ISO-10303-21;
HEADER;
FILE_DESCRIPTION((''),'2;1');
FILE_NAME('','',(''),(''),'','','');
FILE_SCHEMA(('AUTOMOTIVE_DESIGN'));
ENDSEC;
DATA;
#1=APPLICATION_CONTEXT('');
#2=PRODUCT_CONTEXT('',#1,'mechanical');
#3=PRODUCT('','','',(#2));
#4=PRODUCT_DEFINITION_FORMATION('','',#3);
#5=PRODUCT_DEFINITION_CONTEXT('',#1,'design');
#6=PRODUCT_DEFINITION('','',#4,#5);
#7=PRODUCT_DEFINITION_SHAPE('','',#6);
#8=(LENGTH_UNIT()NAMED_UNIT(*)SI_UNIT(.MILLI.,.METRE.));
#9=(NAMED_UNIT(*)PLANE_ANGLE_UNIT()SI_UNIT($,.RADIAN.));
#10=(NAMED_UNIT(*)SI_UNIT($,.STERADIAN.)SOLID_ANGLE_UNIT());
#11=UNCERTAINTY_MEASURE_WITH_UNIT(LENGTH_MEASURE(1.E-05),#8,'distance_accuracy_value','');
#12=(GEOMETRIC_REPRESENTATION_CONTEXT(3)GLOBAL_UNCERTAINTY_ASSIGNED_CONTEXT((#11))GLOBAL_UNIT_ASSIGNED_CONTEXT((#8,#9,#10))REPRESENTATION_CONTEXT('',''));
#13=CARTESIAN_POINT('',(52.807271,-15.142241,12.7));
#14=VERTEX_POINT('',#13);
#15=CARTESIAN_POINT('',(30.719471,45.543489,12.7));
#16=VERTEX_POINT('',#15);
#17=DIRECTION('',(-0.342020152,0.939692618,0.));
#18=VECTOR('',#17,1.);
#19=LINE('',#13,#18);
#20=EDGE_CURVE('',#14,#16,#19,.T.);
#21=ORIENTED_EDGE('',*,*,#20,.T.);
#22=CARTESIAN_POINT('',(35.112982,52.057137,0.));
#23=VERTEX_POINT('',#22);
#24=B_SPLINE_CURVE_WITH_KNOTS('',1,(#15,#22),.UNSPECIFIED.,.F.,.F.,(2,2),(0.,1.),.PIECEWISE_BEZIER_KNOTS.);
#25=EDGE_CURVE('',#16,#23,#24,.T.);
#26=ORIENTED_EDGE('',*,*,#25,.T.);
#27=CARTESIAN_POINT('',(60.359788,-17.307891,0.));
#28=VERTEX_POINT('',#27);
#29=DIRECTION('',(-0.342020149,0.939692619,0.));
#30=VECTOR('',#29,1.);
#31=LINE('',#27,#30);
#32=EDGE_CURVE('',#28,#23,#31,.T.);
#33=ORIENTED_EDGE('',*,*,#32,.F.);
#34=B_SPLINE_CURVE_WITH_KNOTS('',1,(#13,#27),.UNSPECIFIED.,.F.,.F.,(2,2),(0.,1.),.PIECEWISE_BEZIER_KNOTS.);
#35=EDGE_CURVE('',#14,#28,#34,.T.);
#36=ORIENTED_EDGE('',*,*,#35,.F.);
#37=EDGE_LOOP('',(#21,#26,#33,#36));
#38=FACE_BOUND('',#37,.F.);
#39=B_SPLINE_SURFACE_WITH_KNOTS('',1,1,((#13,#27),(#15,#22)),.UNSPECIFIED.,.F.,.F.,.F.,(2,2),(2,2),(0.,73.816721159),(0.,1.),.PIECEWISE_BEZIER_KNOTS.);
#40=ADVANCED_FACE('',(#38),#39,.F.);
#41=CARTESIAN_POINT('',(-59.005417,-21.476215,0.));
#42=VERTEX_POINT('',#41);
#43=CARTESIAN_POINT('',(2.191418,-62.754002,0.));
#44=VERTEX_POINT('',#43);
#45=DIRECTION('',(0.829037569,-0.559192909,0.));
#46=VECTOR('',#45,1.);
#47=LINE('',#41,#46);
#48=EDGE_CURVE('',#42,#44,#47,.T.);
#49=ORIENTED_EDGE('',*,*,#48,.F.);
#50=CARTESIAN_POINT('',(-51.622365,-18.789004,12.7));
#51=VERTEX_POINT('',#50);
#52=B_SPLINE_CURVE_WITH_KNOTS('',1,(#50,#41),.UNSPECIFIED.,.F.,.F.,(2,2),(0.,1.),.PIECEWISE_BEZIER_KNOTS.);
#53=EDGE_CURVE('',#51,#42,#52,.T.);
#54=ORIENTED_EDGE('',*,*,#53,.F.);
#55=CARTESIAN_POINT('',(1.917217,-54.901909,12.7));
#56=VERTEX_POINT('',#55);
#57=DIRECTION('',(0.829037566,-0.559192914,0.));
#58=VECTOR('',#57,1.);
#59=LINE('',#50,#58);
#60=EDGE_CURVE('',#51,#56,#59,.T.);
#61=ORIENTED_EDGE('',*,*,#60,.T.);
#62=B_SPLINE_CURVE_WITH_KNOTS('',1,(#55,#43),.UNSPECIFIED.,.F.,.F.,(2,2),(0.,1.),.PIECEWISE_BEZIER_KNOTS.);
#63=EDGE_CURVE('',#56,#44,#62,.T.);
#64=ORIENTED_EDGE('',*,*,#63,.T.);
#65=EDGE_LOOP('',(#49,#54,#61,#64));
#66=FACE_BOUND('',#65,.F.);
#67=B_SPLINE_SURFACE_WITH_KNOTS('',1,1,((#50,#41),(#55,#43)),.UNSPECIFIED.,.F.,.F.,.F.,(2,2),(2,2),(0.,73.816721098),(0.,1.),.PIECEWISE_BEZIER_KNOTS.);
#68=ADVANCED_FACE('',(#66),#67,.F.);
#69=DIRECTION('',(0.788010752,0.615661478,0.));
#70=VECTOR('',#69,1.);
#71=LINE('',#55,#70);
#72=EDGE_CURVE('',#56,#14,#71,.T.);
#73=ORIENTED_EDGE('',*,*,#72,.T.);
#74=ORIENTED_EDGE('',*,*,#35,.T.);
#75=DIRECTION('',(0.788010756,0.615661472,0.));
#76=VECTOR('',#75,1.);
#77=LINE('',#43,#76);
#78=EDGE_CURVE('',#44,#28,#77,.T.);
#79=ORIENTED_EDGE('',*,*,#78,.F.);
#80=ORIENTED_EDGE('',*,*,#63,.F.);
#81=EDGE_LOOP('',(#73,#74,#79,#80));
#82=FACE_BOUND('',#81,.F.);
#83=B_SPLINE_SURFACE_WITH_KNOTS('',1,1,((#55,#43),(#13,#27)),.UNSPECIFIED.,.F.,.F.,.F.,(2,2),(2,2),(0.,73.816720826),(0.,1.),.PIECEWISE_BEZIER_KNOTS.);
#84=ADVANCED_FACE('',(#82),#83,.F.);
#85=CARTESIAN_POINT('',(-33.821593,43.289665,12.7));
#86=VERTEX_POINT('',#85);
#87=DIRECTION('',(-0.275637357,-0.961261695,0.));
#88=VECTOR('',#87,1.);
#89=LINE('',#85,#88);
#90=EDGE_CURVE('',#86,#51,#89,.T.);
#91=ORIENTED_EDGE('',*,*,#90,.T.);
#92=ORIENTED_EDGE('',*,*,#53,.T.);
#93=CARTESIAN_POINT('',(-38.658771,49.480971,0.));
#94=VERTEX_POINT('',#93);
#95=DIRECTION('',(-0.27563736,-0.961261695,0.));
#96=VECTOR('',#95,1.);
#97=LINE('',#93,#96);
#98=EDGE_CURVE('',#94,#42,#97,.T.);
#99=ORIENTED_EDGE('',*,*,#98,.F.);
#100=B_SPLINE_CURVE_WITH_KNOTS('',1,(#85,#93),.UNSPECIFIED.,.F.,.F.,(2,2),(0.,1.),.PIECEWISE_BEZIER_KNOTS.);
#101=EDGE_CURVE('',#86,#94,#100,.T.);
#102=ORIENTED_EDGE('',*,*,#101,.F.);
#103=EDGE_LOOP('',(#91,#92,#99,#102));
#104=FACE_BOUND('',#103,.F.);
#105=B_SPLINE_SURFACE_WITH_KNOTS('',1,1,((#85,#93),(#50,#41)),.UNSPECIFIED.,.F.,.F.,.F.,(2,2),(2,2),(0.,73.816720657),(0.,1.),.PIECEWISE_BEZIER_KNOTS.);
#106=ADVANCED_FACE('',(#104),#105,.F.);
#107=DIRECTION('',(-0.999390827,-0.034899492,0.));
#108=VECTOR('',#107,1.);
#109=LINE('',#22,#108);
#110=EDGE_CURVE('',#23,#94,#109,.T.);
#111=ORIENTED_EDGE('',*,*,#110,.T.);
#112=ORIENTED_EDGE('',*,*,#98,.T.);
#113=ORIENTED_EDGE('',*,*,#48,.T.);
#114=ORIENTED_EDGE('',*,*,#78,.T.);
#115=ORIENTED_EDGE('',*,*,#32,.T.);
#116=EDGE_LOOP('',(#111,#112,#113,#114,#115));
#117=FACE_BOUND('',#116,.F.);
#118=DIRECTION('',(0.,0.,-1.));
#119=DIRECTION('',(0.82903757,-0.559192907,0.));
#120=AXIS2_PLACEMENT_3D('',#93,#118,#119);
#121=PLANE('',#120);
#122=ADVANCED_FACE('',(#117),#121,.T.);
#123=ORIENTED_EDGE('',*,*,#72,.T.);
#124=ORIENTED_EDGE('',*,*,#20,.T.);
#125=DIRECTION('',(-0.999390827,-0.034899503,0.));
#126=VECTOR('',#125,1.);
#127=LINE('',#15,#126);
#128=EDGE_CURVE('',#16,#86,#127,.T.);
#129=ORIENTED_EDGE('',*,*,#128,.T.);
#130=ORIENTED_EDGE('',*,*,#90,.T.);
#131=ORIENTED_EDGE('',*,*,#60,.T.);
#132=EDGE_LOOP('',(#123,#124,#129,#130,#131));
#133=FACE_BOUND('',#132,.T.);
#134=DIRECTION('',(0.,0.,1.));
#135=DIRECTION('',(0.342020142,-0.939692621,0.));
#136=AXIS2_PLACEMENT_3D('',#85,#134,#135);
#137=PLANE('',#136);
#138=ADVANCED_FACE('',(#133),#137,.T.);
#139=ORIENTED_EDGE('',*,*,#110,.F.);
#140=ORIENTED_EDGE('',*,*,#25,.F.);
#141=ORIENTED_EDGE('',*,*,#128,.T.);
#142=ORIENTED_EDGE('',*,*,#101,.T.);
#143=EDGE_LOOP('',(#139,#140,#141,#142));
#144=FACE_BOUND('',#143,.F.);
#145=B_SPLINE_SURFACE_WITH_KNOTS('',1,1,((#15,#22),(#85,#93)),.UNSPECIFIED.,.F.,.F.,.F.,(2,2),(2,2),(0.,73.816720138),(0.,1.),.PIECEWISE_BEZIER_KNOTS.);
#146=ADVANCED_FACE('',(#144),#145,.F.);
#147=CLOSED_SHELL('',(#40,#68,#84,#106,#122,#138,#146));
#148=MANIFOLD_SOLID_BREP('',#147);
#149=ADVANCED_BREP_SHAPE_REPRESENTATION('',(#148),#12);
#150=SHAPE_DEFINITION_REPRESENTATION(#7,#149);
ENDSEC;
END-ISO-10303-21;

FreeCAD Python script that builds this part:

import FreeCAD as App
import Part
import Sketcher
from FreeCAD import Vector
Q = App.Units.Quantity


def add_polygon(sketch, points):
    """Adds a closed chain of lines whose ends are joined by coincident constraints."""
    first, n = sketch.GeometryCount, len(points)
    for a, b in zip(points, points[1:] + points[:1]):
        sketch.addGeometry(Part.LineSegment(App.Vector(*a, 0), App.Vector(*b, 0)), False)
    for i in range(n):
        sketch.addConstraint(Sketcher.Constraint("Coincident", first + i, 2, first + (i + 1) % n, 1))

doc = App.newDocument("Part")
body = doc.addObject("PartDesign::Body", "Body")

# Sketch on XY plane
sketch1 = doc.addObject("Sketcher::SketchObject", "Sketch")
body.addObject(sketch1)
sketch1.AttachmentSupport = (doc.XY_Plane, [""])
sketch1.MapMode = "FlatFace"
sketch1.AttachmentOffset = App.Placement(Vector(0, 0, 12.7), App.Rotation())
add_polygon(sketch1, [(-33.821593, 43.289665), (-51.622365, -18.789004), (1.917217, -54.901909), (52.807271, -15.142241), (30.719471, 45.543489)])  # lines 0-4
sketch1.addConstraint(Sketcher.Constraint("Equal", 0, 1))
sketch1.addConstraint(Sketcher.Constraint("Equal", 1, 2))
sketch1.addConstraint(Sketcher.Constraint("Equal", 2, 3))
sketch1.addConstraint(Sketcher.Constraint("Equal", 3, 4))
sketch1.addConstraint(Sketcher.Constraint("Angle", 0, Q("-106 deg")))
sketch1.addConstraint(Sketcher.Constraint("Angle", 1, Q("-34.000001 deg")))
sketch1.addConstraint(Sketcher.Constraint("Angle", 2, Q("38 deg")))
sketch1.addConstraint(Sketcher.Constraint("DistanceX", 3, 2, 2, 2, Q("22.0878 mm")))
sketch1.addConstraint(Sketcher.Constraint("DistanceY", 1, 2, -1, 1, Q("54.901909 mm")))
sketch1.addConstraint(Sketcher.Constraint("DistanceX", -1, 1, 2, 2, Q("52.807271 mm")))

# Sketch on XY plane
sketch2 = doc.addObject("Sketcher::SketchObject", "Sketch001")
body.addObject(sketch2)
sketch2.AttachmentSupport = (doc.XY_Plane, [""])
sketch2.MapMode = "FlatFace"
add_polygon(sketch2, [(35.112982, 52.057137), (-38.658771, 49.480971), (-59.005417, -21.476215), (2.191418, -62.754002), (60.359788, -17.307891)])  # lines 0-4
sketch2.addConstraint(Sketcher.Constraint("Equal", 0, 1))
sketch2.addConstraint(Sketcher.Constraint("Equal", 1, 2))
sketch2.addConstraint(Sketcher.Constraint("Equal", 2, 3))
sketch2.addConstraint(Sketcher.Constraint("Equal", 3, 4))
sketch2.addConstraint(Sketcher.Constraint("Angle", 0, Q("-178 deg")))
sketch2.addConstraint(Sketcher.Constraint("Angle", 1, Q("-106 deg")))
sketch2.addConstraint(Sketcher.Constraint("Angle", 2, Q("-34 deg")))
sketch2.addConstraint(Sketcher.Constraint("DistanceX", 1, 2, 4, 2, Q("94.118399 mm")))
sketch2.addConstraint(Sketcher.Constraint("DistanceX", 0, 2, -1, 1, Q("38.658771 mm")))
sketch2.addConstraint(Sketcher.Constraint("DistanceY", -1, 1, 0, 2, Q("49.480971 mm")))

additiveloft = doc.addObject("PartDesign::AdditiveLoft", "AdditiveLoft")
body.addObject(additiveloft)
additiveloft.Profile = sketch1
additiveloft.Sections = [sketch2]

doc.recompute()
